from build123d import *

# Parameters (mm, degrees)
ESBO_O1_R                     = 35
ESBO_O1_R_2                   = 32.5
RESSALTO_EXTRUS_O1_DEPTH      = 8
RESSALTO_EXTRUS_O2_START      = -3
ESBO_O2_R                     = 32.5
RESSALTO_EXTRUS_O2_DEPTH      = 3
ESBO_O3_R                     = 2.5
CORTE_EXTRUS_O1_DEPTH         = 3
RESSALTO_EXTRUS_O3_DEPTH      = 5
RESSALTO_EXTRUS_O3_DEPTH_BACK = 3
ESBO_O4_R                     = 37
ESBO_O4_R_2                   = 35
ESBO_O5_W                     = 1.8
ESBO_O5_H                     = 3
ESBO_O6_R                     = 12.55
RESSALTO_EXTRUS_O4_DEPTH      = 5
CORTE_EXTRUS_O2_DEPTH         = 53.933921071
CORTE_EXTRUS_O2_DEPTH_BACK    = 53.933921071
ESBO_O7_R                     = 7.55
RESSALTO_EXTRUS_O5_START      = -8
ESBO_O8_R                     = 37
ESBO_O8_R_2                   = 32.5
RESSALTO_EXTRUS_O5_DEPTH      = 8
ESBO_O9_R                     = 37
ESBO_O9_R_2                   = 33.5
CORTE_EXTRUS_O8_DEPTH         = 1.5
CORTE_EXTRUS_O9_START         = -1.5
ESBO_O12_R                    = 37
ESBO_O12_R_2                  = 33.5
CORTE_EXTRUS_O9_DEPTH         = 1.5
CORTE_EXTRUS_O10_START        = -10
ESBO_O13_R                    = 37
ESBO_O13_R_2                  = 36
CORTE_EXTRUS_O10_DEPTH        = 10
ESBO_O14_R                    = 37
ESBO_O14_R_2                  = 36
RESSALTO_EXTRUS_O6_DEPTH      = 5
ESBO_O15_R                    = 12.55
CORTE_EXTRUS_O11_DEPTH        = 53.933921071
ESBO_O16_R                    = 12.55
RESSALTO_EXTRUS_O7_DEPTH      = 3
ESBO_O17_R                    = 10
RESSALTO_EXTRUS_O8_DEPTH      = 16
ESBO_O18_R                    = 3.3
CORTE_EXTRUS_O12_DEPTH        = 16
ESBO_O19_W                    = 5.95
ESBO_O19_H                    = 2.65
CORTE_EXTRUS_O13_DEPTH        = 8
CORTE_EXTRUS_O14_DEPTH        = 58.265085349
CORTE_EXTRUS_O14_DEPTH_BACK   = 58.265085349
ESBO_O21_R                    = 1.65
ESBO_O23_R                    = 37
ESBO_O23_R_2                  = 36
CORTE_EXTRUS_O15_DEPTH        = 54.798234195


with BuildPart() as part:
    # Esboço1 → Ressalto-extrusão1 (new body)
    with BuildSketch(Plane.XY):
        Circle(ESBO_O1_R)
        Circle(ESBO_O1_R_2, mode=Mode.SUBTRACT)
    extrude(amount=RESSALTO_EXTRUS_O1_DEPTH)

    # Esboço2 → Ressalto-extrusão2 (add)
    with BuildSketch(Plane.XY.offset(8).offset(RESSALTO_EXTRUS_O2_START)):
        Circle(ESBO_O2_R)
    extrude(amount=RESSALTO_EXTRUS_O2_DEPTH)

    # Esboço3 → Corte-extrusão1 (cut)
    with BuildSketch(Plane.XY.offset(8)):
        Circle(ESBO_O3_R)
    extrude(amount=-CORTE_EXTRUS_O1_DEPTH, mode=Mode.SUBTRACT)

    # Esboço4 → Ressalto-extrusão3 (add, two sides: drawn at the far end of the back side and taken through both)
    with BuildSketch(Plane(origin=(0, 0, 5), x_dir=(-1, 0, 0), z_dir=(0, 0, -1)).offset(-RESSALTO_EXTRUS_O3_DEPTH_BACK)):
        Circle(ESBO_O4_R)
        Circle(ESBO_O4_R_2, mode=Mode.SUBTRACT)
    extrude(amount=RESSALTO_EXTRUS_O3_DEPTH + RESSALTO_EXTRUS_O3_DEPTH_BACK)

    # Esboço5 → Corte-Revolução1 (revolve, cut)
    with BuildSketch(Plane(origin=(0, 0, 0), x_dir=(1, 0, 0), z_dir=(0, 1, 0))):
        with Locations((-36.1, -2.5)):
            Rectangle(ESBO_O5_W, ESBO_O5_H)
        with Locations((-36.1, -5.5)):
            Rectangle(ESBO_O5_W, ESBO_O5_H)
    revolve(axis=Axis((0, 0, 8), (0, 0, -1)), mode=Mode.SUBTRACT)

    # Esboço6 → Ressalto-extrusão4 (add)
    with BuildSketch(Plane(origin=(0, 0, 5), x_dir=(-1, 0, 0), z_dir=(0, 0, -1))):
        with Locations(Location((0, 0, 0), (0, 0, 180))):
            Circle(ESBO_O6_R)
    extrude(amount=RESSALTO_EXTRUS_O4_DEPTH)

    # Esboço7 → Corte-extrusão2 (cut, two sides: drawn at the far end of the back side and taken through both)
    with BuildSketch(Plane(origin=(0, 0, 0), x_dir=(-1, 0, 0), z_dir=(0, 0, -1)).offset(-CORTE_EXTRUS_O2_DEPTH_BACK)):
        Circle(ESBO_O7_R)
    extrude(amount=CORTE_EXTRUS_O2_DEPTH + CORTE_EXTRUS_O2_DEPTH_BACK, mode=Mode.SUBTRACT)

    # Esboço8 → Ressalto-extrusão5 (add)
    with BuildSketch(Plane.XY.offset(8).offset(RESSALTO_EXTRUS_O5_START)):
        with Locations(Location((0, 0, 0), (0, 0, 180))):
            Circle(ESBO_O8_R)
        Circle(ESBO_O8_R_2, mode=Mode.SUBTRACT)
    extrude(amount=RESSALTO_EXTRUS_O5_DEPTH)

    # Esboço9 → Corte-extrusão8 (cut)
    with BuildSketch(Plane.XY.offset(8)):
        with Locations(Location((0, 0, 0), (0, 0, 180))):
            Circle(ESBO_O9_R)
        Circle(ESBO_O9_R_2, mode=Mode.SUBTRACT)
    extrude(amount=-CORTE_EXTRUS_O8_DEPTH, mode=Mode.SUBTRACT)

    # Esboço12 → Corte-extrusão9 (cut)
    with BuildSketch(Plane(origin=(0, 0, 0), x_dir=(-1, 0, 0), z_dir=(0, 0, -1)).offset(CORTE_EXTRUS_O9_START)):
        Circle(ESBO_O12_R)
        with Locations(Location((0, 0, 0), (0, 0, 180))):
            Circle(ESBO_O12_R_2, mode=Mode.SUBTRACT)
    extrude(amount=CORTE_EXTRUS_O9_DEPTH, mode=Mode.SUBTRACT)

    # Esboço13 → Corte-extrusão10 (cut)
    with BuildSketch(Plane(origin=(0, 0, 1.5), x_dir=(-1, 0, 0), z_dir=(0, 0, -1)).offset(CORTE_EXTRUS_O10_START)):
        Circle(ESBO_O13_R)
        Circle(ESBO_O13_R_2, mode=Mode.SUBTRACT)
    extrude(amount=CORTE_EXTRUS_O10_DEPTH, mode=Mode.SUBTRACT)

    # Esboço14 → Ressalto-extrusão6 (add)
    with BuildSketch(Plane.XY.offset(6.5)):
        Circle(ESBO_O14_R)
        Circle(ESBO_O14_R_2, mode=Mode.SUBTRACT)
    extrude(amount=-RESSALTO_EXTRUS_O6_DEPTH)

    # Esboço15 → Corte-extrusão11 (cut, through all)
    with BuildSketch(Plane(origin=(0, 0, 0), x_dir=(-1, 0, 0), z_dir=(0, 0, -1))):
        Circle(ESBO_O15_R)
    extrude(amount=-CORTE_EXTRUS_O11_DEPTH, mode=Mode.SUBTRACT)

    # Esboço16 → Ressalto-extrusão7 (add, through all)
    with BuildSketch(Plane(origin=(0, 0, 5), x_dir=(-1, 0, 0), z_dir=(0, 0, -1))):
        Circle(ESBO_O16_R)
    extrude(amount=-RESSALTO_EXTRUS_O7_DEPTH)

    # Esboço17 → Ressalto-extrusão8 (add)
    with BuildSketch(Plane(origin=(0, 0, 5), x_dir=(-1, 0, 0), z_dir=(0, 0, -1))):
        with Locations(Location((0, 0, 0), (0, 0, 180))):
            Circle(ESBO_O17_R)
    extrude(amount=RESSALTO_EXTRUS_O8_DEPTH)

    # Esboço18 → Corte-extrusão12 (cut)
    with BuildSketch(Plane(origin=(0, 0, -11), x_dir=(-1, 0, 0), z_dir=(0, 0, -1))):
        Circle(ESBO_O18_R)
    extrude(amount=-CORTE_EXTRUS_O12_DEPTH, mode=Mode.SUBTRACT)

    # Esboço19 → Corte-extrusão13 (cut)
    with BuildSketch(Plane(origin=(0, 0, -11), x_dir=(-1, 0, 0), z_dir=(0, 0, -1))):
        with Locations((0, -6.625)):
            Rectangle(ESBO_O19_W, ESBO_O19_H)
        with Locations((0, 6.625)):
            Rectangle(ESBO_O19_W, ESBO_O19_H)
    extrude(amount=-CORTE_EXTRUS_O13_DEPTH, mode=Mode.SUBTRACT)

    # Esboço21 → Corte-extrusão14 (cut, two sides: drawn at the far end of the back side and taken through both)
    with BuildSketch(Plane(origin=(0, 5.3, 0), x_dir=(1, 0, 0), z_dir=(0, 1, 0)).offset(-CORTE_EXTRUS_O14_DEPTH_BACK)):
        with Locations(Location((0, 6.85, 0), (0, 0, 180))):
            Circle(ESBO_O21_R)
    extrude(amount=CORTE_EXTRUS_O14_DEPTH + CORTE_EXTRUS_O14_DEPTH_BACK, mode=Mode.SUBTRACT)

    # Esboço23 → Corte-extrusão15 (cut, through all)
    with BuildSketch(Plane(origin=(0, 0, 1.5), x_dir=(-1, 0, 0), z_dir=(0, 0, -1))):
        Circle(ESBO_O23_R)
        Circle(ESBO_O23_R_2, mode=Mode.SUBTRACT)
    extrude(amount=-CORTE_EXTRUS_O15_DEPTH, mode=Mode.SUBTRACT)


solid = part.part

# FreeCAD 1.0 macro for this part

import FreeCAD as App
import Part
import Sketcher
from FreeCAD import Vector


def add_polygon(sketch, points):
    """Adds a closed chain of lines whose ends are joined by coincident constraints."""
    first, n = sketch.GeometryCount, len(points)
    for a, b in zip(points, points[1:] + points[:1]):
        sketch.addGeometry(Part.LineSegment(App.Vector(*a, 0), App.Vector(*b, 0)), False)
    for i in range(n):
        sketch.addConstraint(Sketcher.Constraint("Coincident", first + i, 2, first + (i + 1) % n, 1))

doc = App.newDocument("Part")
params = doc.addObject("Spreadsheet::Sheet", "Params")
for row, (alias, value) in enumerate([
    ("sketch1_diameter", "70 mm"),
    ("sketch1_diameter2", "65 mm"),
    ("pad1_length", "8 mm"),
    ("sketch2_diameter", "65 mm"),
    ("pad2_length", "3 mm"),
    ("sketch3_diameter", "5 mm"),
    ("pocket1_length", "3 mm"),
    ("sketch4_diameter", "74 mm"),
    ("sketch4_diameter2", "70 mm"),
    ("pad3_length", "5 mm"),
    ("pad3_length2", "3 mm"),
    ("sketch5_height", "6 mm"),
    ("sketch5_width", "1.8 mm"),
    ("groove_angle", "360 deg"),
    ("sketch6_diameter", "25.1 mm"),
    ("pad4_length", "5 mm"),
    ("sketch7_diameter", "15.1 mm"),
    ("sketch8_diameter", "74 mm"),
    ("sketch8_diameter2", "65 mm"),
    ("pad5_length", "8 mm"),
    ("sketch9_diameter", "74 mm"),
    ("sketch9_diameter2", "67 mm"),
    ("pocket3_length", "1.5 mm"),
    ("sketch10_diameter", "74 mm"),
    ("sketch10_diameter2", "67 mm"),
    ("pocket4_length", "1.5 mm"),
    ("sketch11_diameter", "74 mm"),
    ("sketch11_diameter2", "72 mm"),
    ("pocket5_length", "10 mm"),
    ("sketch12_diameter", "74 mm"),
    ("sketch12_diameter2", "72 mm"),
    ("pad6_length", "5 mm"),
    ("sketch13_diameter", "25.1 mm"),
    ("sketch14_diameter", "25.1 mm"),
    ("pad7_length", "3 mm"),
    ("sketch15_diameter", "20 mm"),
    ("pad8_length", "16 mm"),
    ("sketch16_diameter", "6.6 mm"),
    ("pocket7_length", "16 mm"),
    ("sketch17_width", "5.95 mm"),
    ("sketch17_height", "2.65 mm"),
    ("pocket8_length", "8 mm"),
    ("sketch18_diameter", "3.3 mm"),
    ("sketch19_diameter", "74 mm"),
    ("sketch19_diameter2", "72 mm"),
], start=1):
    params.set(f"A{row}", alias)
    params.set(f"B{row}", "=" + value)
    params.setAlias(f"B{row}", alias)

body = doc.addObject("PartDesign::Body", "Body")

sketch1 = body.newObject("Sketcher::SketchObject", "Sketch")
sketch1.AttachmentSupport = (doc.getObject("XY_Plane"), [""])
sketch1.MapMode = "FlatFace"
sketch1.addGeometry([
    Part.Circle(Vector(0, 0, 0), Vector(0, 0, 1), 35),
    Part.Circle(Vector(0, 0, 0), Vector(0, 0, 1), 32.5),
], False)
sketch1.addConstraint([
    Sketcher.Constraint("Coincident", 0, 3, -1, 1),
    Sketcher.Constraint("Coincident", 1, 3, -1, 1),
    Sketcher.Constraint("Diameter", 0, 70.0),
    Sketcher.Constraint("Diameter", 1, 65.0),
])
sketch1.setExpression("Constraints[2]", "Params.sketch1_diameter")
sketch1.setExpression("Constraints[3]", "Params.sketch1_diameter2")
pad1 = body.newObject("PartDesign::Pad", "Pad")
pad1.Profile = sketch1
pad1.setExpression("Length", "Params.pad1_length")

sketch2 = body.newObject("Sketcher::SketchObject", "Sketch001")
sketch2.AttachmentSupport = (doc.getObject("XY_Plane"), [""])
sketch2.MapMode = "FlatFace"
sketch2.AttachmentOffset = App.Placement(Vector(0, 0, 5), App.Rotation())
sketch2.addGeometry(Part.Circle(Vector(0, 0, 0), Vector(0, 0, 1), 32.5), False)
sketch2.addConstraint([
    Sketcher.Constraint("Coincident", 0, 3, -1, 1),
    Sketcher.Constraint("Diameter", 0, 65.0),
])
sketch2.setExpression("Constraints[1]", "Params.sketch2_diameter")
pad2 = body.newObject("PartDesign::Pad", "Pad001")
pad2.Profile = sketch2
pad2.setExpression("Length", "Params.pad2_length")

sketch3 = body.newObject("Sketcher::SketchObject", "Sketch002")
sketch3.AttachmentSupport = (doc.getObject("XY_Plane"), [""])
sketch3.MapMode = "FlatFace"
sketch3.AttachmentOffset = App.Placement(Vector(0, 0, 8), App.Rotation())
sketch3.addGeometry(Part.Circle(Vector(0, 0, 0), Vector(0, 0, 1), 2.5), False)
sketch3.addConstraint([
    Sketcher.Constraint("Coincident", 0, 3, -1, 1),
    Sketcher.Constraint("Diameter", 0, 5.0),
])
sketch3.setExpression("Constraints[1]", "Params.sketch3_diameter")
pocket1 = body.newObject("PartDesign::Pocket", "Pocket")
pocket1.Profile = sketch3
pocket1.setExpression("Length", "Params.pocket1_length")

sketch4 = body.newObject("Sketcher::SketchObject", "Sketch003")
sketch4.AttachmentSupport = (doc.getObject("XY_Plane"), [""])
sketch4.MapMode = "FlatFace"
sketch4.AttachmentOffset = App.Placement(Vector(0, 0, 5), App.Rotation())
sketch4.addGeometry([
    Part.Circle(Vector(0, 0, 0), Vector(0, 0, 1), 37),
    Part.Circle(Vector(0, 0, 0), Vector(0, 0, 1), 35),
], False)
sketch4.addConstraint([
    Sketcher.Constraint("Coincident", 0, 3, -1, 1),
    Sketcher.Constraint("Coincident", 1, 3, -1, 1),
    Sketcher.Constraint("Diameter", 0, 74.0),
    Sketcher.Constraint("Diameter", 1, 70.0),
])
sketch4.setExpression("Constraints[2]", "Params.sketch4_diameter")
sketch4.setExpression("Constraints[3]", "Params.sketch4_diameter2")
pad3 = body.newObject("PartDesign::Pad", "Pad002")
pad3.Profile = sketch4
pad3.Type = "TwoLengths"
pad3.setExpression("Length", "Params.pad3_length")
pad3.setExpression("Length2", "Params.pad3_length2")
pad3.Reversed = True

sketch5 = body.newObject("Sketcher::SketchObject", "Sketch004")
sketch5.AttachmentSupport = (doc.getObject("XZ_Plane"), [""])
sketch5.MapMode = "FlatFace"
add_polygon(sketch5, [(-37, 1), (-37, 7), (-35.2, 7), (-35.2, 1)])
sketch5.addConstraint([
    Sketcher.Constraint("Vertical", 0),
    Sketcher.Constraint("Horizontal", 1),
    Sketcher.Constraint("Vertical", 2),
    Sketcher.Constraint("Horizontal", 3),
    Sketcher.Constraint("DistanceY", 0, 1, 0, 2, 6.0),
    Sketcher.Constraint("DistanceX", 1, 1, 1, 2, 1.8),
    Sketcher.Constraint("DistanceX", 0, 2, -1, 1, 37.0),
    Sketcher.Constraint("DistanceY", -1, 1, 0, 2, 7.0),
])
sketch5.setExpression("Constraints[8]", "Params.sketch5_height")
sketch5.setExpression("Constraints[9]", "Params.sketch5_width")
groove = body.newObject("PartDesign::Groove", "Groove")
groove.Profile = sketch5
groove.ReferenceAxis = (sketch5, ["V_Axis"])
groove.setExpression("Angle", "Params.groove_angle")

sketch6 = body.newObject("Sketcher::SketchObject", "Sketch005")
sketch6.AttachmentSupport = (doc.getObject("XY_Plane"), [""])
sketch6.MapMode = "FlatFace"
sketch6.AttachmentOffset = App.Placement(Vector(0, 0, 5), App.Rotation())
sketch6.addGeometry(Part.Circle(Vector(0, 0, 0), Vector(0, 0, 1), 12.55), False)
sketch6.addConstraint([
    Sketcher.Constraint("Coincident", 0, 3, -1, 1),
    Sketcher.Constraint("Diameter", 0, 25.1),
])
sketch6.setExpression("Constraints[1]", "Params.sketch6_diameter")
pad4 = body.newObject("PartDesign::Pad", "Pad003")
pad4.Profile = sketch6
pad4.setExpression("Length", "Params.pad4_length")
pad4.Reversed = True

sketch7 = body.newObject("Sketcher::SketchObject", "Sketch006")
sketch7.AttachmentSupport = (doc.getObject("XY_Plane"), [""])
sketch7.MapMode = "FlatFace"
sketch7.addGeometry(Part.Circle(Vector(0, 0, 0), Vector(0, 0, 1), 7.55), False)
sketch7.addConstraint([
    Sketcher.Constraint("Coincident", 0, 3, -1, 1),
    Sketcher.Constraint("Diameter", 0, 15.1),
])
sketch7.setExpression("Constraints[1]", "Params.sketch7_diameter")
pocket2 = body.newObject("PartDesign::Pocket", "Pocket001")
pocket2.Profile = sketch7
pocket2.Type = "ThroughAll"
pocket2.Midplane = True

sketch8 = body.newObject("Sketcher::SketchObject", "Sketch007")
sketch8.AttachmentSupport = (doc.getObject("XY_Plane"), [""])
sketch8.MapMode = "FlatFace"
sketch8.addGeometry([
    Part.Circle(Vector(0, 0, 0), Vector(0, 0, 1), 37),
    Part.Circle(Vector(0, 0, 0), Vector(0, 0, 1), 32.5),
], False)
sketch8.addConstraint([
    Sketcher.Constraint("Coincident", 0, 3, -1, 1),
    Sketcher.Constraint("Coincident", 1, 3, -1, 1),
    Sketcher.Constraint("Diameter", 0, 74.0),
    Sketcher.Constraint("Diameter", 1, 65.0),
])
sketch8.setExpression("Constraints[2]", "Params.sketch8_diameter")
sketch8.setExpression("Constraints[3]", "Params.sketch8_diameter2")
pad5 = body.newObject("PartDesign::Pad", "Pad004")
pad5.Profile = sketch8
pad5.setExpression("Length", "Params.pad5_length")

sketch9 = body.newObject("Sketcher::SketchObject", "Sketch008")
sketch9.AttachmentSupport = (doc.getObject("XY_Plane"), [""])
sketch9.MapMode = "FlatFace"
sketch9.AttachmentOffset = App.Placement(Vector(0, 0, 8), App.Rotation())
sketch9.addGeometry([
    Part.Circle(Vector(0, 0, 0), Vector(0, 0, 1), 37),
    Part.Circle(Vector(0, 0, 0), Vector(0, 0, 1), 33.5),
], False)
sketch9.addConstraint([
    Sketcher.Constraint("Coincident", 0, 3, -1, 1),
    Sketcher.Constraint("Coincident", 1, 3, -1, 1),
    Sketcher.Constraint("Diameter", 0, 74.0),
    Sketcher.Constraint("Diameter", 1, 67.0),
])
sketch9.setExpression("Constraints[2]", "Params.sketch9_diameter")
sketch9.setExpression("Constraints[3]", "Params.sketch9_diameter2")
pocket3 = body.newObject("PartDesign::Pocket", "Pocket002")
pocket3.Profile = sketch9
pocket3.setExpression("Length", "Params.pocket3_length")

sketch10 = body.newObject("Sketcher::SketchObject", "Sketch009")
sketch10.AttachmentSupport = (doc.getObject("XY_Plane"), [""])
sketch10.MapMode = "FlatFace"
sketch10.AttachmentOffset = App.Placement(Vector(0, 0, 1.5), App.Rotation())
sketch10.addGeometry([
    Part.Circle(Vector(0, 0, 0), Vector(0, 0, 1), 37),
    Part.Circle(Vector(0, 0, 0), Vector(0, 0, 1), 33.5),
], False)
sketch10.addConstraint([
    Sketcher.Constraint("Coincident", 0, 3, -1, 1),
    Sketcher.Constraint("Coincident", 1, 3, -1, 1),
    Sketcher.Constraint("Diameter", 0, 74.0),
    Sketcher.Constraint("Diameter", 1, 67.0),
])
sketch10.setExpression("Constraints[2]", "Params.sketch10_diameter")
sketch10.setExpression("Constraints[3]", "Params.sketch10_diameter2")
pocket4 = body.newObject("PartDesign::Pocket", "Pocket003")
pocket4.Profile = sketch10
pocket4.setExpression("Length", "Params.pocket4_length")

sketch11 = body.newObject("Sketcher::SketchObject", "Sketch010")
sketch11.AttachmentSupport = (doc.getObject("XY_Plane"), [""])
sketch11.MapMode = "FlatFace"
sketch11.AttachmentOffset = App.Placement(Vector(0, 0, 11.5), App.Rotation())
sketch11.addGeometry([
    Part.Circle(Vector(0, 0, 0), Vector(0, 0, 1), 37),
    Part.Circle(Vector(0, 0, 0), Vector(0, 0, 1), 36),
], False)
sketch11.addConstraint([
    Sketcher.Constraint("Coincident", 0, 3, -1, 1),
    Sketcher.Constraint("Coincident", 1, 3, -1, 1),
    Sketcher.Constraint("Diameter", 0, 74.0),
    Sketcher.Constraint("Diameter", 1, 72.0),
])
sketch11.setExpression("Constraints[2]", "Params.sketch11_diameter")
sketch11.setExpression("Constraints[3]", "Params.sketch11_diameter2")
pocket5 = body.newObject("PartDesign::Pocket", "Pocket004")
pocket5.Profile = sketch11
pocket5.setExpression("Length", "Params.pocket5_length")

sketch12 = body.newObject("Sketcher::SketchObject", "Sketch011")
sketch12.AttachmentSupport = (doc.getObject("XY_Plane"), [""])
sketch12.MapMode = "FlatFace"
sketch12.AttachmentOffset = App.Placement(Vector(0, 0, 6.5), App.Rotation())
sketch12.addGeometry([
    Part.Circle(Vector(0, 0, 0), Vector(0, 0, 1), 37),
    Part.Circle(Vector(0, 0, 0), Vector(0, 0, 1), 36),
], False)
sketch12.addConstraint([
    Sketcher.Constraint("Coincident", 0, 3, -1, 1),
    Sketcher.Constraint("Coincident", 1, 3, -1, 1),
    Sketcher.Constraint("Diameter", 0, 74.0),
    Sketcher.Constraint("Diameter", 1, 72.0),
])
sketch12.setExpression("Constraints[2]", "Params.sketch12_diameter")
sketch12.setExpression("Constraints[3]", "Params.sketch12_diameter2")
pad6 = body.newObject("PartDesign::Pad", "Pad005")
pad6.Profile = sketch12
pad6.setExpression("Length", "Params.pad6_length")
pad6.Reversed = True

sketch13 = body.newObject("Sketcher::SketchObject", "Sketch012")
sketch13.AttachmentSupport = (doc.getObject("XY_Plane"), [""])
sketch13.MapMode = "FlatFace"
sketch13.addGeometry(Part.Circle(Vector(0, 0, 0), Vector(0, 0, 1), 12.55), False)
sketch13.addConstraint([
    Sketcher.Constraint("Coincident", 0, 3, -1, 1),
    Sketcher.Constraint("Diameter", 0, 25.1),
])
sketch13.setExpression("Constraints[1]", "Params.sketch13_diameter")
pocket6 = body.newObject("PartDesign::Pocket", "Pocket005")
pocket6.Profile = sketch13
pocket6.Type = "ThroughAll"
pocket6.Reversed = True

sketch14 = body.newObject("Sketcher::SketchObject", "Sketch013")
sketch14.AttachmentSupport = (doc.getObject("XY_Plane"), [""])
sketch14.MapMode = "FlatFace"
sketch14.AttachmentOffset = App.Placement(Vector(0, 0, 5), App.Rotation())
sketch14.addGeometry(Part.Circle(Vector(0, 0, 0), Vector(0, 0, 1), 12.55), False)
sketch14.addConstraint([
    Sketcher.Constraint("Coincident", 0, 3, -1, 1),
    Sketcher.Constraint("Diameter", 0, 25.1),
])
sketch14.setExpression("Constraints[1]", "Params.sketch14_diameter")
pad7 = body.newObject("PartDesign::Pad", "Pad006")
pad7.Profile = sketch14
pad7.setExpression("Length", "Params.pad7_length")

sketch15 = body.newObject("Sketcher::SketchObject", "Sketch014")
sketch15.AttachmentSupport = (doc.getObject("XY_Plane"), [""])
sketch15.MapMode = "FlatFace"
sketch15.AttachmentOffset = App.Placement(Vector(0, 0, 5), App.Rotation())
sketch15.addGeometry(Part.Circle(Vector(0, 0, 0), Vector(0, 0, 1), 10), False)
sketch15.addConstraint([
    Sketcher.Constraint("Coincident", 0, 3, -1, 1),
    Sketcher.Constraint("Diameter", 0, 20.0),
])
sketch15.setExpression("Constraints[1]", "Params.sketch15_diameter")
pad8 = body.newObject("PartDesign::Pad", "Pad007")
pad8.Profile = sketch15
pad8.setExpression("Length", "Params.pad8_length")
pad8.Reversed = True

sketch16 = body.newObject("Sketcher::SketchObject", "Sketch015")
sketch16.AttachmentSupport = (doc.getObject("XY_Plane"), [""])
sketch16.MapMode = "FlatFace"
sketch16.AttachmentOffset = App.Placement(Vector(0, 0, -11), App.Rotation())
sketch16.addGeometry(Part.Circle(Vector(0, 0, 0), Vector(0, 0, 1), 3.3), False)
sketch16.addConstraint([
    Sketcher.Constraint("Coincident", 0, 3, -1, 1),
    Sketcher.Constraint("Diameter", 0, 6.6),
])
sketch16.setExpression("Constraints[1]", "Params.sketch16_diameter")
pocket7 = body.newObject("PartDesign::Pocket", "Pocket006")
pocket7.Profile = sketch16
pocket7.setExpression("Length", "Params.pocket7_length")
pocket7.Reversed = True

sketch17 = body.newObject("Sketcher::SketchObject", "Sketch016")
sketch17.AttachmentSupport = (doc.getObject("XY_Plane"), [""])
sketch17.MapMode = "FlatFace"
sketch17.AttachmentOffset = App.Placement(Vector(0, 0, -11), App.Rotation())
add_polygon(sketch17, [(2.975, -5.3), (2.975, -7.95), (-2.975, -7.95), (-2.975, -5.3)])
add_polygon(sketch17, [(2.975, 7.95), (2.975, 5.3), (-2.975, 5.3), (-2.975, 7.95)])
sketch17.addConstraint([
    Sketcher.Constraint("Vertical", 0),
    Sketcher.Constraint("Horizontal", 1),
    Sketcher.Constraint("Vertical", 2),
    Sketcher.Constraint("Horizontal", 3),
    Sketcher.Constraint("Vertical", 4),
    Sketcher.Constraint("Horizontal", 5),
    Sketcher.Constraint("Vertical", 6),
    Sketcher.Constraint("Horizontal", 7),
    Sketcher.Constraint("Symmetric", 2, 2, 4, 2, -1, 1),
    Sketcher.Constraint("Symmetric", 0, 2, 6, 2, -1, 1),
    Sketcher.Constraint("Vertical", 3, 2, 4, 2),
    Sketcher.Constraint("DistanceX", 1, 2, 1, 1, 5.95),
    Sketcher.Constraint("DistanceY", 0, 2, 0, 1, 2.65),
    Sketcher.Constraint("DistanceY", 2, 2, -1, 1, 5.3),
])
sketch17.setExpression("Constraints[19]", "Params.sketch17_width")
sketch17.setExpression("Constraints[20]", "Params.sketch17_height")
pocket8 = body.newObject("PartDesign::Pocket", "Pocket007")
pocket8.Profile = sketch17
pocket8.setExpression("Length", "Params.pocket8_length")
pocket8.Reversed = True

sketch18 = body.newObject("Sketcher::SketchObject", "Sketch017")
sketch18.AttachmentSupport = (doc.getObject("XZ_Plane"), [""])
sketch18.MapMode = "FlatFace"
sketch18.AttachmentOffset = App.Placement(Vector(0, 0, -5.3), App.Rotation())
sketch18.addGeometry(Part.Circle(Vector(0, -6.85, 0), Vector(0, 0, 1), 1.65), False)
sketch18.addConstraint([
    Sketcher.Constraint("PointOnObject", 0, 3, -2),
    Sketcher.Constraint("Diameter", 0, 3.3),
    Sketcher.Constraint("DistanceY", 0, 3, -1, 1, 6.85),
])
sketch18.setExpression("Constraints[1]", "Params.sketch18_diameter")
pocket9 = body.newObject("PartDesign::Pocket", "Pocket008")
pocket9.Profile = sketch18
pocket9.Type = "ThroughAll"
pocket9.Midplane = True

sketch19 = body.newObject("Sketcher::SketchObject", "Sketch018")
sketch19.AttachmentSupport = (doc.getObject("XY_Plane"), [""])
sketch19.MapMode = "FlatFace"
sketch19.AttachmentOffset = App.Placement(Vector(0, 0, 1.5), App.Rotation())
sketch19.addGeometry([
    Part.Circle(Vector(0, 0, 0), Vector(0, 0, 1), 37),
    Part.Circle(Vector(0, 0, 0), Vector(0, 0, 1), 36),
], False)
sketch19.addConstraint([
    Sketcher.Constraint("Coincident", 0, 3, -1, 1),
    Sketcher.Constraint("Coincident", 1, 3, -1, 1),
    Sketcher.Constraint("Diameter", 0, 74.0),
    Sketcher.Constraint("Diameter", 1, 72.0),
])
sketch19.setExpression("Constraints[2]", "Params.sketch19_diameter")
sketch19.setExpression("Constraints[3]", "Params.sketch19_diameter2")
pocket10 = body.newObject("PartDesign::Pocket", "Pocket009")
pocket10.Profile = sketch19
pocket10.Type = "ThroughAll"
pocket10.Reversed = True

doc.recompute()
